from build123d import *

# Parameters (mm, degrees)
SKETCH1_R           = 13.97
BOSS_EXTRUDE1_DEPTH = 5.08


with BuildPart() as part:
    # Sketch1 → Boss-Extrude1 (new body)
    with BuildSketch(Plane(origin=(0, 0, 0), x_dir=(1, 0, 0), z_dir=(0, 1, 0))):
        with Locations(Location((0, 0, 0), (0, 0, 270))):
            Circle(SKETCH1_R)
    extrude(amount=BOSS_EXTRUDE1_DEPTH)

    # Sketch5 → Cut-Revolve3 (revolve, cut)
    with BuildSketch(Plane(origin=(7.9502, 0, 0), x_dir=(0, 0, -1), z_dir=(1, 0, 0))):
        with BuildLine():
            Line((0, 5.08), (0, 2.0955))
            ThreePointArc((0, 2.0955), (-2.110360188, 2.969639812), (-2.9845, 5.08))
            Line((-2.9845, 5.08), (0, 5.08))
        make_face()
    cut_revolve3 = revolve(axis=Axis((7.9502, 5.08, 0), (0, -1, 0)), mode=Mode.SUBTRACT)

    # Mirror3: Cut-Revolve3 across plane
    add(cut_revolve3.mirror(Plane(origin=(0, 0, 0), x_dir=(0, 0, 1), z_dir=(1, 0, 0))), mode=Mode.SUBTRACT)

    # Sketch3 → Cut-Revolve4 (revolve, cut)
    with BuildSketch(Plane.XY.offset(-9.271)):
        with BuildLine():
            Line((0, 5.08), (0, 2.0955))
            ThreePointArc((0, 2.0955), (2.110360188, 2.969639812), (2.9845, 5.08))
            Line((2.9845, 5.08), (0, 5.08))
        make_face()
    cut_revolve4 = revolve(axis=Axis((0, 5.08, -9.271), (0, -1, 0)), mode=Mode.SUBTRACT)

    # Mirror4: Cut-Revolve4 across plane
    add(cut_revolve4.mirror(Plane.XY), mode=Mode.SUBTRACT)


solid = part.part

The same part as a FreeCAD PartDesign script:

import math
import FreeCAD as App
import Part
import Sketcher
from FreeCAD import Vector
Q = App.Units.Quantity

doc = App.newDocument("Part")
params = doc.addObject("Spreadsheet::Sheet", "Params")
for row, (alias, value) in enumerate([
    ("sketch1_diameter", "1.1 in"),
    ("pad1_length", "0.2 in"),
    ("groove_angle", "360 deg"),
    ("groove2_angle", "360 deg"),
], start=1):
    params.set(f"A{row}", alias)
    params.set(f"B{row}", "=" + value)
    params.setAlias(f"B{row}", alias)

body = doc.addObject("PartDesign::Body", "Body")

sketch1 = body.newObject("Sketcher::SketchObject", "Sketch")
sketch1.AttachmentSupport = (doc.getObject("XZ_Plane"), [""])
sketch1.MapMode = "FlatFace"
sketch1.addGeometry(Part.Circle(Vector(0, 0, 0), Vector(0, 0, 1), 14), False)
sketch1.addConstraint(Sketcher.Constraint("Coincident", 0, 3, -1, 1))
sketch1.addConstraint(Sketcher.Constraint("Diameter", 0, Q("1.1 in")))
sketch1.setExpression("Constraints[1]", "Params.sketch1_diameter")
pad1 = body.newObject("PartDesign::Pad", "Pad")
pad1.Profile = sketch1
pad1.setExpression("Length", "Params.pad1_length")
pad1.Reversed = True

sketch2 = body.newObject("Sketcher::SketchObject", "Sketch001")
sketch2.AttachmentSupport = (doc.getObject("YZ_Plane"), [""])
sketch2.MapMode = "FlatFace"
sketch2.AttachmentOffset = App.Placement(Vector(0, 0, 0.313 * 25.4), App.Rotation())
sketch2.addGeometry(Part.LineSegment(Vector(2.1, 0, 0), Vector(5.1, 0, 0)), False)
sketch2.addGeometry(Part.LineSegment(Vector(5.1, 0, 0), Vector(5.1, 3, 0)), False)
sketch2.addGeometry(Part.ArcOfCircle(Part.Circle(Vector(5.1, 0, 0), Vector(0, 0, 1), 3), math.radians(90), math.radians(180)), False)
sketch2.addConstraint(Sketcher.Constraint("Coincident", 0, 2, 1, 1))
sketch2.addConstraint(Sketcher.Constraint("Coincident", 1, 2, 2, 1))
sketch2.addConstraint(Sketcher.Constraint("Coincident", 2, 2, 0, 1))
sketch2.addConstraint(Sketcher.Constraint("Horizontal", 0))
sketch2.addConstraint(Sketcher.Constraint("Vertical", 1))
sketch2.addConstraint(Sketcher.Constraint("Coincident", 0, 2, 2, 3))
sketch2.addConstraint(Sketcher.Constraint("PointOnObject", 2, 3, -1))
sketch2.addConstraint(Sketcher.Constraint("DistanceX", -1, 1, 2, 3, Q("0.2 in")))
sketch2.addConstraint(Sketcher.Constraint("Radius", 2, Q("0.1175 in")))
groove = body.newObject("PartDesign::Groove", "Groove")
groove.Profile = sketch2
groove.ReferenceAxis = (sketch2, ["H_Axis"])
groove.setExpression("Angle", "Params.groove_angle")
doc.recompute()

mirrored = body.newObject("PartDesign::Mirrored", "Mirrored")
mirrored.Originals = [groove]
mirrored.MirrorPlane = (doc.getObject("YZ_Plane"), [""])
body.Tip = mirrored

sketch3 = body.newObject("Sketcher::SketchObject", "Sketch002")
sketch3.AttachmentSupport = (doc.getObject("XY_Plane"), [""])
sketch3.MapMode = "FlatFace"
sketch3.AttachmentOffset = App.Placement(Vector(0, 0, -0.365 * 25.4), App.Rotation())
sketch3.addGeometry(Part.LineSegment(Vector(0, 5.1, 0), Vector(0, 2.1, 0)), False)
sketch3.addGeometry(Part.ArcOfCircle(Part.Circle(Vector(0, 5.1, 0), Vector(0, 0, 1), 3), math.radians(-90), math.radians(0)), False)
sketch3.addGeometry(Part.LineSegment(Vector(3, 5.1, 0), Vector(0, 5.1, 0)), False)
sketch3.addConstraint(Sketcher.Constraint("Coincident", 0, 2, 1, 1))
sketch3.addConstraint(Sketcher.Constraint("Coincident", 1, 2, 2, 1))
sketch3.addConstraint(Sketcher.Constraint("Coincident", 2, 2, 0, 1))
sketch3.addConstraint(Sketcher.Constraint("Vertical", 0))
sketch3.addConstraint(Sketcher.Constraint("Horizontal", 2))
sketch3.addConstraint(Sketcher.Constraint("Coincident", 2, 2, 1, 3))
sketch3.addConstraint(Sketcher.Constraint("PointOnObject", 1, 3, -2))
sketch3.addConstraint(Sketcher.Constraint("DistanceY", -1, 1, 1, 3, Q("0.2 in")))
sketch3.addConstraint(Sketcher.Constraint("Radius", 1, Q("0.1175 in")))
groove2 = body.newObject("PartDesign::Groove", "Groove001")
groove2.Profile = sketch3
groove2.ReferenceAxis = (sketch3, ["V_Axis"])
groove2.setExpression("Angle", "Params.groove2_angle")
doc.recompute()

mirrored2 = body.newObject("PartDesign::Mirrored", "Mirrored001")
mirrored2.Originals = [groove2]
mirrored2.MirrorPlane = (doc.getObject("XY_Plane"), [""])
body.Tip = mirrored2

doc.recompute()
